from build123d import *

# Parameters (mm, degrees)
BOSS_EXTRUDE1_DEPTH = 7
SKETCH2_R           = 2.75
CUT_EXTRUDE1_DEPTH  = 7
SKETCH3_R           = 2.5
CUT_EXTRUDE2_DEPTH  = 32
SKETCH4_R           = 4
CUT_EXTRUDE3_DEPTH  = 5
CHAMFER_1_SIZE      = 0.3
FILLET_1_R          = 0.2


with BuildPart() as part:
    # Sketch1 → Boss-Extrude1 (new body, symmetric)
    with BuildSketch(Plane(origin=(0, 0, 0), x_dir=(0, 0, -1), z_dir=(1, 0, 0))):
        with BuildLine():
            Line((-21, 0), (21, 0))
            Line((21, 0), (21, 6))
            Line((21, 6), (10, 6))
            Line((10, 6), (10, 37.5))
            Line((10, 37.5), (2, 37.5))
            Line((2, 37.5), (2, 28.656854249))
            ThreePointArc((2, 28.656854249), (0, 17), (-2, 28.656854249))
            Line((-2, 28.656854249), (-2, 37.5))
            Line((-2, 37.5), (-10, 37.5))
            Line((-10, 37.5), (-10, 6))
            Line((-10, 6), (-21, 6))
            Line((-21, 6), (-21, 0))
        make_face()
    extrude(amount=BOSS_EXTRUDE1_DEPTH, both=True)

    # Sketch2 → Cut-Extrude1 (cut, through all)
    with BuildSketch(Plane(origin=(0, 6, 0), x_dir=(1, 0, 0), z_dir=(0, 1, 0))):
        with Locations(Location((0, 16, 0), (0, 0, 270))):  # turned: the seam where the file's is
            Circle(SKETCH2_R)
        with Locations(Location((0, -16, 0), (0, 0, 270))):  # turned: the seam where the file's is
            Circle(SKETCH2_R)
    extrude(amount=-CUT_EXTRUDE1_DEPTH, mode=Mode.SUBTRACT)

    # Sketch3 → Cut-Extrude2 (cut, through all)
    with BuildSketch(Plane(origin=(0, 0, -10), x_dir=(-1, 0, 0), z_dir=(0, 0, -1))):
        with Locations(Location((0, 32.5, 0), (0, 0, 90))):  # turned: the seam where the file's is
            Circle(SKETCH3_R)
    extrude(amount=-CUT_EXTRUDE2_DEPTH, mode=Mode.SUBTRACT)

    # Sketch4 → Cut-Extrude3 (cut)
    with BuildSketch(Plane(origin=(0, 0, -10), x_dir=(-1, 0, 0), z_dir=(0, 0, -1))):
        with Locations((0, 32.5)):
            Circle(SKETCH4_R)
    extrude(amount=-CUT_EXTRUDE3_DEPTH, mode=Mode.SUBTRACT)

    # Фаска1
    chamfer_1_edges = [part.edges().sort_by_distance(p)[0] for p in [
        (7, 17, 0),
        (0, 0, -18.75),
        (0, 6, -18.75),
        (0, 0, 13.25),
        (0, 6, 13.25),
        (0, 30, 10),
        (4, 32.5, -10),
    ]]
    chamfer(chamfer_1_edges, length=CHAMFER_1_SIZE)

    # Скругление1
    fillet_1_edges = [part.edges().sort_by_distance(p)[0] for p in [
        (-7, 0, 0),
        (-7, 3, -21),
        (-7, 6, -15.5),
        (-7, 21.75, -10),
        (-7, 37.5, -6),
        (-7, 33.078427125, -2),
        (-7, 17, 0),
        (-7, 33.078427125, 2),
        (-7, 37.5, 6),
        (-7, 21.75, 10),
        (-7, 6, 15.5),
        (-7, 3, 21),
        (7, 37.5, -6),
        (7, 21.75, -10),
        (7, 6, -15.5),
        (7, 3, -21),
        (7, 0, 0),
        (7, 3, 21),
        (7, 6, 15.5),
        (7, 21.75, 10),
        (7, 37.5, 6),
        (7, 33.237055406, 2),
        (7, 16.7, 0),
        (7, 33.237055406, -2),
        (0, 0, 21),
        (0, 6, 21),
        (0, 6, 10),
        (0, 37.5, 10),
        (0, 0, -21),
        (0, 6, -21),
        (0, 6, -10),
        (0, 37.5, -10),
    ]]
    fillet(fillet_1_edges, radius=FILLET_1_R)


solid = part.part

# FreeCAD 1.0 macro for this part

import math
import FreeCAD as App
import Part
import Sketcher
from FreeCAD import Vector
Q = App.Units.Quantity


def edges_at(feature, points):
    """Names of the edges that pass closest to the given points."""
    edges = feature.Shape.Edges
    near = lambda p: min(range(len(edges)), key=lambda i: edges[i].distToShape(Part.Vertex(*p))[0])
    return sorted({f"Edge{near(p) + 1}" for p in points})

doc = App.newDocument("Part")
body = doc.addObject("PartDesign::Body", "Body")

# Sketch on YZ plane
sketch1 = doc.addObject("Sketcher::SketchObject", "Sketch")
body.addObject(sketch1)
sketch1.AttachmentSupport = (doc.YZ_Plane, [""])
sketch1.MapMode = "FlatFace"
sketch1.addGeometry([
    Part.LineSegment(Vector(0, 21, 0), Vector(0, -21, 0)),  # 0
    Part.LineSegment(Vector(0, -21, 0), Vector(6, -21, 0)),  # 1
    Part.LineSegment(Vector(6, -21, 0), Vector(6, -10, 0)),  # 2
    Part.LineSegment(Vector(6, -10, 0), Vector(37.5, -10, 0)),  # 3
    Part.LineSegment(Vector(37.5, -10, 0), Vector(37.5, -2, 0)),  # 4
    Part.LineSegment(Vector(37.5, -2, 0), Vector(28.7, -2, 0)),  # 5
    Part.ArcOfCircle(Part.Circle(Vector(23, 0, 0), Vector(0, 0, 1), 6), math.radians(19), math.radians(341)),  # 6
    Part.LineSegment(Vector(28.7, 2, 0), Vector(37.5, 2, 0)),  # 7
    Part.LineSegment(Vector(37.5, 2, 0), Vector(37.5, 10, 0)),  # 8
    Part.LineSegment(Vector(37.5, 10, 0), Vector(6, 10, 0)),  # 9
    Part.LineSegment(Vector(6, 10, 0), Vector(6, 21, 0)),  # 10
    Part.LineSegment(Vector(6, 21, 0), Vector(0, 21, 0)),  # 11
], False)
sketch1.addConstraint([
    Sketcher.Constraint("Coincident", 0, 2, 1, 1),
    Sketcher.Constraint("Coincident", 1, 2, 2, 1),
    Sketcher.Constraint("Coincident", 2, 2, 3, 1),
    Sketcher.Constraint("Coincident", 3, 2, 4, 1),
    Sketcher.Constraint("Coincident", 4, 2, 5, 1),
    Sketcher.Constraint("Coincident", 5, 2, 6, 2),
    Sketcher.Constraint("Coincident", 6, 1, 7, 1),
    Sketcher.Constraint("Coincident", 7, 2, 8, 1),
    Sketcher.Constraint("Coincident", 8, 2, 9, 1),
    Sketcher.Constraint("Coincident", 9, 2, 10, 1),
    Sketcher.Constraint("Coincident", 10, 2, 11, 1),
    Sketcher.Constraint("Coincident", 11, 2, 0, 1),
    Sketcher.Constraint("Vertical", 0),
    Sketcher.Constraint("Horizontal", 1),
    Sketcher.Constraint("Vertical", 2),
    Sketcher.Constraint("Horizontal", 3),
    Sketcher.Constraint("Vertical", 4),
    Sketcher.Constraint("Horizontal", 5),
    Sketcher.Constraint("Horizontal", 7),
    Sketcher.Constraint("Vertical", 8),
    Sketcher.Constraint("Horizontal", 9),
    Sketcher.Constraint("Vertical", 10),
    Sketcher.Constraint("Horizontal", 11),
    Sketcher.Constraint("Symmetric", 0, 2, 11, 2, -1, 1),
    Sketcher.Constraint("Symmetric", 5, 2, 6, 1, -1),
    Sketcher.Constraint("Symmetric", 3, 2, 8, 2, -1),
    Sketcher.Constraint("Vertical", 2, 2, 9, 2),
    Sketcher.Constraint("Radius", 6, Q("6 mm")),
    Sketcher.Constraint("DistanceX", 1, 1, 1, 2, Q("6 mm")),
    Sketcher.Constraint("DistanceY", 0, 2, 0, 1, Q("42 mm")),
    Sketcher.Constraint("DistanceY", 2, 1, 2, 2, Q("11 mm")),
    Sketcher.Constraint("DistanceY", 4, 1, 4, 2, Q("8 mm")),
    Sketcher.Constraint("DistanceX", 3, 1, 3, 2, Q("31.5 mm")),
    Sketcher.Constraint("DistanceX", -1, 1, 6, 3, Q("23 mm")),
])
pad1 = doc.addObject("PartDesign::Pad", "Pad")
body.addObject(pad1)
pad1.Profile = sketch1
pad1.Length = 14
pad1.Midplane = True

# Sketch on XZ plane
sketch2 = doc.addObject("Sketcher::SketchObject", "Sketch001")
body.addObject(sketch2)
sketch2.AttachmentSupport = (doc.XZ_Plane, [""])
sketch2.MapMode = "FlatFace"
sketch2.AttachmentOffset = App.Placement(Vector(0, 0, -6), App.Rotation())
sketch2.addGeometry([
    Part.Circle(Vector(0, -16, 0), Vector(0, 0, 1), 2.8),
    Part.Circle(Vector(0, 16, 0), Vector(0, 0, 1), 2.8),
], False)
sketch2.addConstraint([
    Sketcher.Constraint("Equal", 0, 1),
    Sketcher.Constraint("Symmetric", 0, 3, 1, 3, -1, 1),
    Sketcher.Constraint("PointOnObject", 0, 3, -2),
    Sketcher.Constraint("Diameter", 0, Q("5.5 mm")),
    Sketcher.Constraint("DistanceY", 0, 3, -1, 1, Q("16 mm")),
])
pocket1 = doc.addObject("PartDesign::Pocket", "Pocket")
body.addObject(pocket1)
pocket1.Profile = sketch2
pocket1.Type = "ThroughAll"
pocket1.Reversed = True

# Sketch on XY plane
sketch3 = doc.addObject("Sketcher::SketchObject", "Sketch002")
body.addObject(sketch3)
sketch3.AttachmentSupport = (doc.XY_Plane, [""])
sketch3.MapMode = "FlatFace"
sketch3.AttachmentOffset = App.Placement(Vector(0, 0, -10), App.Rotation())
sketch3.addGeometry(Part.Circle(Vector(0, 32.5, 0), Vector(0, 0, 1), 2.5), False)
sketch3.addConstraint([
    Sketcher.Constraint("PointOnObject", 0, 3, -2),
    Sketcher.Constraint("Diameter", 0, Q("5 mm")),
    Sketcher.Constraint("DistanceY", -1, 1, 0, 3, Q("32.5 mm")),
])
pocket2 = doc.addObject("PartDesign::Pocket", "Pocket001")
body.addObject(pocket2)
pocket2.Profile = sketch3
pocket2.Type = "ThroughAll"
pocket2.Reversed = True

# Sketch on XY plane
sketch4 = doc.addObject("Sketcher::SketchObject", "Sketch003")
body.addObject(sketch4)
sketch4.AttachmentSupport = (doc.XY_Plane, [""])
sketch4.MapMode = "FlatFace"
sketch4.AttachmentOffset = App.Placement(Vector(0, 0, -10), App.Rotation())
sketch4.addGeometry(Part.Circle(Vector(0, 32.5, 0), Vector(0, 0, 1), 4), False)
sketch4.addConstraint([
    Sketcher.Constraint("PointOnObject", 0, 3, -2),
    Sketcher.Constraint("Diameter", 0, Q("8 mm")),
    Sketcher.Constraint("DistanceY", -1, 1, 0, 3, Q("32.5 mm")),
])
pocket3 = doc.addObject("PartDesign::Pocket", "Pocket002")
body.addObject(pocket3)
pocket3.Profile = sketch4
pocket3.Length = 5
pocket3.Reversed = True
doc.recompute()

chamfer = doc.addObject("PartDesign::Chamfer", "Chamfer")
body.addObject(chamfer)
chamfer.Base = (pocket3, edges_at(pocket3, [
    (7, 17, 0),
    (0, 0, -18.75),
    (0, 6, -18.75),
    (0, 0, 13.25),
    (0, 6, 13.25),
    (0, 30, 10),
    (4, 32.5, -10),
]))
chamfer.Size = 0.3
doc.recompute()

fillet = doc.addObject("PartDesign::Fillet", "Fillet")
body.addObject(fillet)
fillet.Base = (chamfer, edges_at(chamfer, [
    (-7, 0, 0),
    (-7, 3, -21),
    (-7, 6, -15.5),
    (-7, 21.75, -10),
    (-7, 37.5, -6),
    (-7, 33.078, -2),
    (-7, 17, 0),
    (-7, 33.078, 2),
    (-7, 37.5, 6),
    (-7, 21.75, 10),
    (-7, 6, 15.5),
    (-7, 3, 21),
    (7, 37.5, -6),
    (7, 21.75, -10),
    (7, 6, -15.5),
    (7, 3, -21),
    (7, 0, 0),
    (7, 3, 21),
    (7, 6, 15.5),
    (7, 21.75, 10),
    (7, 37.5, 6),
    (7, 33.237, 2),
    (7, 16.7, 0),
    (7, 33.237, -2),
    (0, 0, 21),
    (0, 6, 21),
    (0, 6, 10),
    (0, 37.5, 10),
    (0, 0, -21),
    (0, 6, -21),
    (0, 6, -10),
    (0, 37.5, -10),
]))
fillet.Radius = 0.2

doc.recompute()
